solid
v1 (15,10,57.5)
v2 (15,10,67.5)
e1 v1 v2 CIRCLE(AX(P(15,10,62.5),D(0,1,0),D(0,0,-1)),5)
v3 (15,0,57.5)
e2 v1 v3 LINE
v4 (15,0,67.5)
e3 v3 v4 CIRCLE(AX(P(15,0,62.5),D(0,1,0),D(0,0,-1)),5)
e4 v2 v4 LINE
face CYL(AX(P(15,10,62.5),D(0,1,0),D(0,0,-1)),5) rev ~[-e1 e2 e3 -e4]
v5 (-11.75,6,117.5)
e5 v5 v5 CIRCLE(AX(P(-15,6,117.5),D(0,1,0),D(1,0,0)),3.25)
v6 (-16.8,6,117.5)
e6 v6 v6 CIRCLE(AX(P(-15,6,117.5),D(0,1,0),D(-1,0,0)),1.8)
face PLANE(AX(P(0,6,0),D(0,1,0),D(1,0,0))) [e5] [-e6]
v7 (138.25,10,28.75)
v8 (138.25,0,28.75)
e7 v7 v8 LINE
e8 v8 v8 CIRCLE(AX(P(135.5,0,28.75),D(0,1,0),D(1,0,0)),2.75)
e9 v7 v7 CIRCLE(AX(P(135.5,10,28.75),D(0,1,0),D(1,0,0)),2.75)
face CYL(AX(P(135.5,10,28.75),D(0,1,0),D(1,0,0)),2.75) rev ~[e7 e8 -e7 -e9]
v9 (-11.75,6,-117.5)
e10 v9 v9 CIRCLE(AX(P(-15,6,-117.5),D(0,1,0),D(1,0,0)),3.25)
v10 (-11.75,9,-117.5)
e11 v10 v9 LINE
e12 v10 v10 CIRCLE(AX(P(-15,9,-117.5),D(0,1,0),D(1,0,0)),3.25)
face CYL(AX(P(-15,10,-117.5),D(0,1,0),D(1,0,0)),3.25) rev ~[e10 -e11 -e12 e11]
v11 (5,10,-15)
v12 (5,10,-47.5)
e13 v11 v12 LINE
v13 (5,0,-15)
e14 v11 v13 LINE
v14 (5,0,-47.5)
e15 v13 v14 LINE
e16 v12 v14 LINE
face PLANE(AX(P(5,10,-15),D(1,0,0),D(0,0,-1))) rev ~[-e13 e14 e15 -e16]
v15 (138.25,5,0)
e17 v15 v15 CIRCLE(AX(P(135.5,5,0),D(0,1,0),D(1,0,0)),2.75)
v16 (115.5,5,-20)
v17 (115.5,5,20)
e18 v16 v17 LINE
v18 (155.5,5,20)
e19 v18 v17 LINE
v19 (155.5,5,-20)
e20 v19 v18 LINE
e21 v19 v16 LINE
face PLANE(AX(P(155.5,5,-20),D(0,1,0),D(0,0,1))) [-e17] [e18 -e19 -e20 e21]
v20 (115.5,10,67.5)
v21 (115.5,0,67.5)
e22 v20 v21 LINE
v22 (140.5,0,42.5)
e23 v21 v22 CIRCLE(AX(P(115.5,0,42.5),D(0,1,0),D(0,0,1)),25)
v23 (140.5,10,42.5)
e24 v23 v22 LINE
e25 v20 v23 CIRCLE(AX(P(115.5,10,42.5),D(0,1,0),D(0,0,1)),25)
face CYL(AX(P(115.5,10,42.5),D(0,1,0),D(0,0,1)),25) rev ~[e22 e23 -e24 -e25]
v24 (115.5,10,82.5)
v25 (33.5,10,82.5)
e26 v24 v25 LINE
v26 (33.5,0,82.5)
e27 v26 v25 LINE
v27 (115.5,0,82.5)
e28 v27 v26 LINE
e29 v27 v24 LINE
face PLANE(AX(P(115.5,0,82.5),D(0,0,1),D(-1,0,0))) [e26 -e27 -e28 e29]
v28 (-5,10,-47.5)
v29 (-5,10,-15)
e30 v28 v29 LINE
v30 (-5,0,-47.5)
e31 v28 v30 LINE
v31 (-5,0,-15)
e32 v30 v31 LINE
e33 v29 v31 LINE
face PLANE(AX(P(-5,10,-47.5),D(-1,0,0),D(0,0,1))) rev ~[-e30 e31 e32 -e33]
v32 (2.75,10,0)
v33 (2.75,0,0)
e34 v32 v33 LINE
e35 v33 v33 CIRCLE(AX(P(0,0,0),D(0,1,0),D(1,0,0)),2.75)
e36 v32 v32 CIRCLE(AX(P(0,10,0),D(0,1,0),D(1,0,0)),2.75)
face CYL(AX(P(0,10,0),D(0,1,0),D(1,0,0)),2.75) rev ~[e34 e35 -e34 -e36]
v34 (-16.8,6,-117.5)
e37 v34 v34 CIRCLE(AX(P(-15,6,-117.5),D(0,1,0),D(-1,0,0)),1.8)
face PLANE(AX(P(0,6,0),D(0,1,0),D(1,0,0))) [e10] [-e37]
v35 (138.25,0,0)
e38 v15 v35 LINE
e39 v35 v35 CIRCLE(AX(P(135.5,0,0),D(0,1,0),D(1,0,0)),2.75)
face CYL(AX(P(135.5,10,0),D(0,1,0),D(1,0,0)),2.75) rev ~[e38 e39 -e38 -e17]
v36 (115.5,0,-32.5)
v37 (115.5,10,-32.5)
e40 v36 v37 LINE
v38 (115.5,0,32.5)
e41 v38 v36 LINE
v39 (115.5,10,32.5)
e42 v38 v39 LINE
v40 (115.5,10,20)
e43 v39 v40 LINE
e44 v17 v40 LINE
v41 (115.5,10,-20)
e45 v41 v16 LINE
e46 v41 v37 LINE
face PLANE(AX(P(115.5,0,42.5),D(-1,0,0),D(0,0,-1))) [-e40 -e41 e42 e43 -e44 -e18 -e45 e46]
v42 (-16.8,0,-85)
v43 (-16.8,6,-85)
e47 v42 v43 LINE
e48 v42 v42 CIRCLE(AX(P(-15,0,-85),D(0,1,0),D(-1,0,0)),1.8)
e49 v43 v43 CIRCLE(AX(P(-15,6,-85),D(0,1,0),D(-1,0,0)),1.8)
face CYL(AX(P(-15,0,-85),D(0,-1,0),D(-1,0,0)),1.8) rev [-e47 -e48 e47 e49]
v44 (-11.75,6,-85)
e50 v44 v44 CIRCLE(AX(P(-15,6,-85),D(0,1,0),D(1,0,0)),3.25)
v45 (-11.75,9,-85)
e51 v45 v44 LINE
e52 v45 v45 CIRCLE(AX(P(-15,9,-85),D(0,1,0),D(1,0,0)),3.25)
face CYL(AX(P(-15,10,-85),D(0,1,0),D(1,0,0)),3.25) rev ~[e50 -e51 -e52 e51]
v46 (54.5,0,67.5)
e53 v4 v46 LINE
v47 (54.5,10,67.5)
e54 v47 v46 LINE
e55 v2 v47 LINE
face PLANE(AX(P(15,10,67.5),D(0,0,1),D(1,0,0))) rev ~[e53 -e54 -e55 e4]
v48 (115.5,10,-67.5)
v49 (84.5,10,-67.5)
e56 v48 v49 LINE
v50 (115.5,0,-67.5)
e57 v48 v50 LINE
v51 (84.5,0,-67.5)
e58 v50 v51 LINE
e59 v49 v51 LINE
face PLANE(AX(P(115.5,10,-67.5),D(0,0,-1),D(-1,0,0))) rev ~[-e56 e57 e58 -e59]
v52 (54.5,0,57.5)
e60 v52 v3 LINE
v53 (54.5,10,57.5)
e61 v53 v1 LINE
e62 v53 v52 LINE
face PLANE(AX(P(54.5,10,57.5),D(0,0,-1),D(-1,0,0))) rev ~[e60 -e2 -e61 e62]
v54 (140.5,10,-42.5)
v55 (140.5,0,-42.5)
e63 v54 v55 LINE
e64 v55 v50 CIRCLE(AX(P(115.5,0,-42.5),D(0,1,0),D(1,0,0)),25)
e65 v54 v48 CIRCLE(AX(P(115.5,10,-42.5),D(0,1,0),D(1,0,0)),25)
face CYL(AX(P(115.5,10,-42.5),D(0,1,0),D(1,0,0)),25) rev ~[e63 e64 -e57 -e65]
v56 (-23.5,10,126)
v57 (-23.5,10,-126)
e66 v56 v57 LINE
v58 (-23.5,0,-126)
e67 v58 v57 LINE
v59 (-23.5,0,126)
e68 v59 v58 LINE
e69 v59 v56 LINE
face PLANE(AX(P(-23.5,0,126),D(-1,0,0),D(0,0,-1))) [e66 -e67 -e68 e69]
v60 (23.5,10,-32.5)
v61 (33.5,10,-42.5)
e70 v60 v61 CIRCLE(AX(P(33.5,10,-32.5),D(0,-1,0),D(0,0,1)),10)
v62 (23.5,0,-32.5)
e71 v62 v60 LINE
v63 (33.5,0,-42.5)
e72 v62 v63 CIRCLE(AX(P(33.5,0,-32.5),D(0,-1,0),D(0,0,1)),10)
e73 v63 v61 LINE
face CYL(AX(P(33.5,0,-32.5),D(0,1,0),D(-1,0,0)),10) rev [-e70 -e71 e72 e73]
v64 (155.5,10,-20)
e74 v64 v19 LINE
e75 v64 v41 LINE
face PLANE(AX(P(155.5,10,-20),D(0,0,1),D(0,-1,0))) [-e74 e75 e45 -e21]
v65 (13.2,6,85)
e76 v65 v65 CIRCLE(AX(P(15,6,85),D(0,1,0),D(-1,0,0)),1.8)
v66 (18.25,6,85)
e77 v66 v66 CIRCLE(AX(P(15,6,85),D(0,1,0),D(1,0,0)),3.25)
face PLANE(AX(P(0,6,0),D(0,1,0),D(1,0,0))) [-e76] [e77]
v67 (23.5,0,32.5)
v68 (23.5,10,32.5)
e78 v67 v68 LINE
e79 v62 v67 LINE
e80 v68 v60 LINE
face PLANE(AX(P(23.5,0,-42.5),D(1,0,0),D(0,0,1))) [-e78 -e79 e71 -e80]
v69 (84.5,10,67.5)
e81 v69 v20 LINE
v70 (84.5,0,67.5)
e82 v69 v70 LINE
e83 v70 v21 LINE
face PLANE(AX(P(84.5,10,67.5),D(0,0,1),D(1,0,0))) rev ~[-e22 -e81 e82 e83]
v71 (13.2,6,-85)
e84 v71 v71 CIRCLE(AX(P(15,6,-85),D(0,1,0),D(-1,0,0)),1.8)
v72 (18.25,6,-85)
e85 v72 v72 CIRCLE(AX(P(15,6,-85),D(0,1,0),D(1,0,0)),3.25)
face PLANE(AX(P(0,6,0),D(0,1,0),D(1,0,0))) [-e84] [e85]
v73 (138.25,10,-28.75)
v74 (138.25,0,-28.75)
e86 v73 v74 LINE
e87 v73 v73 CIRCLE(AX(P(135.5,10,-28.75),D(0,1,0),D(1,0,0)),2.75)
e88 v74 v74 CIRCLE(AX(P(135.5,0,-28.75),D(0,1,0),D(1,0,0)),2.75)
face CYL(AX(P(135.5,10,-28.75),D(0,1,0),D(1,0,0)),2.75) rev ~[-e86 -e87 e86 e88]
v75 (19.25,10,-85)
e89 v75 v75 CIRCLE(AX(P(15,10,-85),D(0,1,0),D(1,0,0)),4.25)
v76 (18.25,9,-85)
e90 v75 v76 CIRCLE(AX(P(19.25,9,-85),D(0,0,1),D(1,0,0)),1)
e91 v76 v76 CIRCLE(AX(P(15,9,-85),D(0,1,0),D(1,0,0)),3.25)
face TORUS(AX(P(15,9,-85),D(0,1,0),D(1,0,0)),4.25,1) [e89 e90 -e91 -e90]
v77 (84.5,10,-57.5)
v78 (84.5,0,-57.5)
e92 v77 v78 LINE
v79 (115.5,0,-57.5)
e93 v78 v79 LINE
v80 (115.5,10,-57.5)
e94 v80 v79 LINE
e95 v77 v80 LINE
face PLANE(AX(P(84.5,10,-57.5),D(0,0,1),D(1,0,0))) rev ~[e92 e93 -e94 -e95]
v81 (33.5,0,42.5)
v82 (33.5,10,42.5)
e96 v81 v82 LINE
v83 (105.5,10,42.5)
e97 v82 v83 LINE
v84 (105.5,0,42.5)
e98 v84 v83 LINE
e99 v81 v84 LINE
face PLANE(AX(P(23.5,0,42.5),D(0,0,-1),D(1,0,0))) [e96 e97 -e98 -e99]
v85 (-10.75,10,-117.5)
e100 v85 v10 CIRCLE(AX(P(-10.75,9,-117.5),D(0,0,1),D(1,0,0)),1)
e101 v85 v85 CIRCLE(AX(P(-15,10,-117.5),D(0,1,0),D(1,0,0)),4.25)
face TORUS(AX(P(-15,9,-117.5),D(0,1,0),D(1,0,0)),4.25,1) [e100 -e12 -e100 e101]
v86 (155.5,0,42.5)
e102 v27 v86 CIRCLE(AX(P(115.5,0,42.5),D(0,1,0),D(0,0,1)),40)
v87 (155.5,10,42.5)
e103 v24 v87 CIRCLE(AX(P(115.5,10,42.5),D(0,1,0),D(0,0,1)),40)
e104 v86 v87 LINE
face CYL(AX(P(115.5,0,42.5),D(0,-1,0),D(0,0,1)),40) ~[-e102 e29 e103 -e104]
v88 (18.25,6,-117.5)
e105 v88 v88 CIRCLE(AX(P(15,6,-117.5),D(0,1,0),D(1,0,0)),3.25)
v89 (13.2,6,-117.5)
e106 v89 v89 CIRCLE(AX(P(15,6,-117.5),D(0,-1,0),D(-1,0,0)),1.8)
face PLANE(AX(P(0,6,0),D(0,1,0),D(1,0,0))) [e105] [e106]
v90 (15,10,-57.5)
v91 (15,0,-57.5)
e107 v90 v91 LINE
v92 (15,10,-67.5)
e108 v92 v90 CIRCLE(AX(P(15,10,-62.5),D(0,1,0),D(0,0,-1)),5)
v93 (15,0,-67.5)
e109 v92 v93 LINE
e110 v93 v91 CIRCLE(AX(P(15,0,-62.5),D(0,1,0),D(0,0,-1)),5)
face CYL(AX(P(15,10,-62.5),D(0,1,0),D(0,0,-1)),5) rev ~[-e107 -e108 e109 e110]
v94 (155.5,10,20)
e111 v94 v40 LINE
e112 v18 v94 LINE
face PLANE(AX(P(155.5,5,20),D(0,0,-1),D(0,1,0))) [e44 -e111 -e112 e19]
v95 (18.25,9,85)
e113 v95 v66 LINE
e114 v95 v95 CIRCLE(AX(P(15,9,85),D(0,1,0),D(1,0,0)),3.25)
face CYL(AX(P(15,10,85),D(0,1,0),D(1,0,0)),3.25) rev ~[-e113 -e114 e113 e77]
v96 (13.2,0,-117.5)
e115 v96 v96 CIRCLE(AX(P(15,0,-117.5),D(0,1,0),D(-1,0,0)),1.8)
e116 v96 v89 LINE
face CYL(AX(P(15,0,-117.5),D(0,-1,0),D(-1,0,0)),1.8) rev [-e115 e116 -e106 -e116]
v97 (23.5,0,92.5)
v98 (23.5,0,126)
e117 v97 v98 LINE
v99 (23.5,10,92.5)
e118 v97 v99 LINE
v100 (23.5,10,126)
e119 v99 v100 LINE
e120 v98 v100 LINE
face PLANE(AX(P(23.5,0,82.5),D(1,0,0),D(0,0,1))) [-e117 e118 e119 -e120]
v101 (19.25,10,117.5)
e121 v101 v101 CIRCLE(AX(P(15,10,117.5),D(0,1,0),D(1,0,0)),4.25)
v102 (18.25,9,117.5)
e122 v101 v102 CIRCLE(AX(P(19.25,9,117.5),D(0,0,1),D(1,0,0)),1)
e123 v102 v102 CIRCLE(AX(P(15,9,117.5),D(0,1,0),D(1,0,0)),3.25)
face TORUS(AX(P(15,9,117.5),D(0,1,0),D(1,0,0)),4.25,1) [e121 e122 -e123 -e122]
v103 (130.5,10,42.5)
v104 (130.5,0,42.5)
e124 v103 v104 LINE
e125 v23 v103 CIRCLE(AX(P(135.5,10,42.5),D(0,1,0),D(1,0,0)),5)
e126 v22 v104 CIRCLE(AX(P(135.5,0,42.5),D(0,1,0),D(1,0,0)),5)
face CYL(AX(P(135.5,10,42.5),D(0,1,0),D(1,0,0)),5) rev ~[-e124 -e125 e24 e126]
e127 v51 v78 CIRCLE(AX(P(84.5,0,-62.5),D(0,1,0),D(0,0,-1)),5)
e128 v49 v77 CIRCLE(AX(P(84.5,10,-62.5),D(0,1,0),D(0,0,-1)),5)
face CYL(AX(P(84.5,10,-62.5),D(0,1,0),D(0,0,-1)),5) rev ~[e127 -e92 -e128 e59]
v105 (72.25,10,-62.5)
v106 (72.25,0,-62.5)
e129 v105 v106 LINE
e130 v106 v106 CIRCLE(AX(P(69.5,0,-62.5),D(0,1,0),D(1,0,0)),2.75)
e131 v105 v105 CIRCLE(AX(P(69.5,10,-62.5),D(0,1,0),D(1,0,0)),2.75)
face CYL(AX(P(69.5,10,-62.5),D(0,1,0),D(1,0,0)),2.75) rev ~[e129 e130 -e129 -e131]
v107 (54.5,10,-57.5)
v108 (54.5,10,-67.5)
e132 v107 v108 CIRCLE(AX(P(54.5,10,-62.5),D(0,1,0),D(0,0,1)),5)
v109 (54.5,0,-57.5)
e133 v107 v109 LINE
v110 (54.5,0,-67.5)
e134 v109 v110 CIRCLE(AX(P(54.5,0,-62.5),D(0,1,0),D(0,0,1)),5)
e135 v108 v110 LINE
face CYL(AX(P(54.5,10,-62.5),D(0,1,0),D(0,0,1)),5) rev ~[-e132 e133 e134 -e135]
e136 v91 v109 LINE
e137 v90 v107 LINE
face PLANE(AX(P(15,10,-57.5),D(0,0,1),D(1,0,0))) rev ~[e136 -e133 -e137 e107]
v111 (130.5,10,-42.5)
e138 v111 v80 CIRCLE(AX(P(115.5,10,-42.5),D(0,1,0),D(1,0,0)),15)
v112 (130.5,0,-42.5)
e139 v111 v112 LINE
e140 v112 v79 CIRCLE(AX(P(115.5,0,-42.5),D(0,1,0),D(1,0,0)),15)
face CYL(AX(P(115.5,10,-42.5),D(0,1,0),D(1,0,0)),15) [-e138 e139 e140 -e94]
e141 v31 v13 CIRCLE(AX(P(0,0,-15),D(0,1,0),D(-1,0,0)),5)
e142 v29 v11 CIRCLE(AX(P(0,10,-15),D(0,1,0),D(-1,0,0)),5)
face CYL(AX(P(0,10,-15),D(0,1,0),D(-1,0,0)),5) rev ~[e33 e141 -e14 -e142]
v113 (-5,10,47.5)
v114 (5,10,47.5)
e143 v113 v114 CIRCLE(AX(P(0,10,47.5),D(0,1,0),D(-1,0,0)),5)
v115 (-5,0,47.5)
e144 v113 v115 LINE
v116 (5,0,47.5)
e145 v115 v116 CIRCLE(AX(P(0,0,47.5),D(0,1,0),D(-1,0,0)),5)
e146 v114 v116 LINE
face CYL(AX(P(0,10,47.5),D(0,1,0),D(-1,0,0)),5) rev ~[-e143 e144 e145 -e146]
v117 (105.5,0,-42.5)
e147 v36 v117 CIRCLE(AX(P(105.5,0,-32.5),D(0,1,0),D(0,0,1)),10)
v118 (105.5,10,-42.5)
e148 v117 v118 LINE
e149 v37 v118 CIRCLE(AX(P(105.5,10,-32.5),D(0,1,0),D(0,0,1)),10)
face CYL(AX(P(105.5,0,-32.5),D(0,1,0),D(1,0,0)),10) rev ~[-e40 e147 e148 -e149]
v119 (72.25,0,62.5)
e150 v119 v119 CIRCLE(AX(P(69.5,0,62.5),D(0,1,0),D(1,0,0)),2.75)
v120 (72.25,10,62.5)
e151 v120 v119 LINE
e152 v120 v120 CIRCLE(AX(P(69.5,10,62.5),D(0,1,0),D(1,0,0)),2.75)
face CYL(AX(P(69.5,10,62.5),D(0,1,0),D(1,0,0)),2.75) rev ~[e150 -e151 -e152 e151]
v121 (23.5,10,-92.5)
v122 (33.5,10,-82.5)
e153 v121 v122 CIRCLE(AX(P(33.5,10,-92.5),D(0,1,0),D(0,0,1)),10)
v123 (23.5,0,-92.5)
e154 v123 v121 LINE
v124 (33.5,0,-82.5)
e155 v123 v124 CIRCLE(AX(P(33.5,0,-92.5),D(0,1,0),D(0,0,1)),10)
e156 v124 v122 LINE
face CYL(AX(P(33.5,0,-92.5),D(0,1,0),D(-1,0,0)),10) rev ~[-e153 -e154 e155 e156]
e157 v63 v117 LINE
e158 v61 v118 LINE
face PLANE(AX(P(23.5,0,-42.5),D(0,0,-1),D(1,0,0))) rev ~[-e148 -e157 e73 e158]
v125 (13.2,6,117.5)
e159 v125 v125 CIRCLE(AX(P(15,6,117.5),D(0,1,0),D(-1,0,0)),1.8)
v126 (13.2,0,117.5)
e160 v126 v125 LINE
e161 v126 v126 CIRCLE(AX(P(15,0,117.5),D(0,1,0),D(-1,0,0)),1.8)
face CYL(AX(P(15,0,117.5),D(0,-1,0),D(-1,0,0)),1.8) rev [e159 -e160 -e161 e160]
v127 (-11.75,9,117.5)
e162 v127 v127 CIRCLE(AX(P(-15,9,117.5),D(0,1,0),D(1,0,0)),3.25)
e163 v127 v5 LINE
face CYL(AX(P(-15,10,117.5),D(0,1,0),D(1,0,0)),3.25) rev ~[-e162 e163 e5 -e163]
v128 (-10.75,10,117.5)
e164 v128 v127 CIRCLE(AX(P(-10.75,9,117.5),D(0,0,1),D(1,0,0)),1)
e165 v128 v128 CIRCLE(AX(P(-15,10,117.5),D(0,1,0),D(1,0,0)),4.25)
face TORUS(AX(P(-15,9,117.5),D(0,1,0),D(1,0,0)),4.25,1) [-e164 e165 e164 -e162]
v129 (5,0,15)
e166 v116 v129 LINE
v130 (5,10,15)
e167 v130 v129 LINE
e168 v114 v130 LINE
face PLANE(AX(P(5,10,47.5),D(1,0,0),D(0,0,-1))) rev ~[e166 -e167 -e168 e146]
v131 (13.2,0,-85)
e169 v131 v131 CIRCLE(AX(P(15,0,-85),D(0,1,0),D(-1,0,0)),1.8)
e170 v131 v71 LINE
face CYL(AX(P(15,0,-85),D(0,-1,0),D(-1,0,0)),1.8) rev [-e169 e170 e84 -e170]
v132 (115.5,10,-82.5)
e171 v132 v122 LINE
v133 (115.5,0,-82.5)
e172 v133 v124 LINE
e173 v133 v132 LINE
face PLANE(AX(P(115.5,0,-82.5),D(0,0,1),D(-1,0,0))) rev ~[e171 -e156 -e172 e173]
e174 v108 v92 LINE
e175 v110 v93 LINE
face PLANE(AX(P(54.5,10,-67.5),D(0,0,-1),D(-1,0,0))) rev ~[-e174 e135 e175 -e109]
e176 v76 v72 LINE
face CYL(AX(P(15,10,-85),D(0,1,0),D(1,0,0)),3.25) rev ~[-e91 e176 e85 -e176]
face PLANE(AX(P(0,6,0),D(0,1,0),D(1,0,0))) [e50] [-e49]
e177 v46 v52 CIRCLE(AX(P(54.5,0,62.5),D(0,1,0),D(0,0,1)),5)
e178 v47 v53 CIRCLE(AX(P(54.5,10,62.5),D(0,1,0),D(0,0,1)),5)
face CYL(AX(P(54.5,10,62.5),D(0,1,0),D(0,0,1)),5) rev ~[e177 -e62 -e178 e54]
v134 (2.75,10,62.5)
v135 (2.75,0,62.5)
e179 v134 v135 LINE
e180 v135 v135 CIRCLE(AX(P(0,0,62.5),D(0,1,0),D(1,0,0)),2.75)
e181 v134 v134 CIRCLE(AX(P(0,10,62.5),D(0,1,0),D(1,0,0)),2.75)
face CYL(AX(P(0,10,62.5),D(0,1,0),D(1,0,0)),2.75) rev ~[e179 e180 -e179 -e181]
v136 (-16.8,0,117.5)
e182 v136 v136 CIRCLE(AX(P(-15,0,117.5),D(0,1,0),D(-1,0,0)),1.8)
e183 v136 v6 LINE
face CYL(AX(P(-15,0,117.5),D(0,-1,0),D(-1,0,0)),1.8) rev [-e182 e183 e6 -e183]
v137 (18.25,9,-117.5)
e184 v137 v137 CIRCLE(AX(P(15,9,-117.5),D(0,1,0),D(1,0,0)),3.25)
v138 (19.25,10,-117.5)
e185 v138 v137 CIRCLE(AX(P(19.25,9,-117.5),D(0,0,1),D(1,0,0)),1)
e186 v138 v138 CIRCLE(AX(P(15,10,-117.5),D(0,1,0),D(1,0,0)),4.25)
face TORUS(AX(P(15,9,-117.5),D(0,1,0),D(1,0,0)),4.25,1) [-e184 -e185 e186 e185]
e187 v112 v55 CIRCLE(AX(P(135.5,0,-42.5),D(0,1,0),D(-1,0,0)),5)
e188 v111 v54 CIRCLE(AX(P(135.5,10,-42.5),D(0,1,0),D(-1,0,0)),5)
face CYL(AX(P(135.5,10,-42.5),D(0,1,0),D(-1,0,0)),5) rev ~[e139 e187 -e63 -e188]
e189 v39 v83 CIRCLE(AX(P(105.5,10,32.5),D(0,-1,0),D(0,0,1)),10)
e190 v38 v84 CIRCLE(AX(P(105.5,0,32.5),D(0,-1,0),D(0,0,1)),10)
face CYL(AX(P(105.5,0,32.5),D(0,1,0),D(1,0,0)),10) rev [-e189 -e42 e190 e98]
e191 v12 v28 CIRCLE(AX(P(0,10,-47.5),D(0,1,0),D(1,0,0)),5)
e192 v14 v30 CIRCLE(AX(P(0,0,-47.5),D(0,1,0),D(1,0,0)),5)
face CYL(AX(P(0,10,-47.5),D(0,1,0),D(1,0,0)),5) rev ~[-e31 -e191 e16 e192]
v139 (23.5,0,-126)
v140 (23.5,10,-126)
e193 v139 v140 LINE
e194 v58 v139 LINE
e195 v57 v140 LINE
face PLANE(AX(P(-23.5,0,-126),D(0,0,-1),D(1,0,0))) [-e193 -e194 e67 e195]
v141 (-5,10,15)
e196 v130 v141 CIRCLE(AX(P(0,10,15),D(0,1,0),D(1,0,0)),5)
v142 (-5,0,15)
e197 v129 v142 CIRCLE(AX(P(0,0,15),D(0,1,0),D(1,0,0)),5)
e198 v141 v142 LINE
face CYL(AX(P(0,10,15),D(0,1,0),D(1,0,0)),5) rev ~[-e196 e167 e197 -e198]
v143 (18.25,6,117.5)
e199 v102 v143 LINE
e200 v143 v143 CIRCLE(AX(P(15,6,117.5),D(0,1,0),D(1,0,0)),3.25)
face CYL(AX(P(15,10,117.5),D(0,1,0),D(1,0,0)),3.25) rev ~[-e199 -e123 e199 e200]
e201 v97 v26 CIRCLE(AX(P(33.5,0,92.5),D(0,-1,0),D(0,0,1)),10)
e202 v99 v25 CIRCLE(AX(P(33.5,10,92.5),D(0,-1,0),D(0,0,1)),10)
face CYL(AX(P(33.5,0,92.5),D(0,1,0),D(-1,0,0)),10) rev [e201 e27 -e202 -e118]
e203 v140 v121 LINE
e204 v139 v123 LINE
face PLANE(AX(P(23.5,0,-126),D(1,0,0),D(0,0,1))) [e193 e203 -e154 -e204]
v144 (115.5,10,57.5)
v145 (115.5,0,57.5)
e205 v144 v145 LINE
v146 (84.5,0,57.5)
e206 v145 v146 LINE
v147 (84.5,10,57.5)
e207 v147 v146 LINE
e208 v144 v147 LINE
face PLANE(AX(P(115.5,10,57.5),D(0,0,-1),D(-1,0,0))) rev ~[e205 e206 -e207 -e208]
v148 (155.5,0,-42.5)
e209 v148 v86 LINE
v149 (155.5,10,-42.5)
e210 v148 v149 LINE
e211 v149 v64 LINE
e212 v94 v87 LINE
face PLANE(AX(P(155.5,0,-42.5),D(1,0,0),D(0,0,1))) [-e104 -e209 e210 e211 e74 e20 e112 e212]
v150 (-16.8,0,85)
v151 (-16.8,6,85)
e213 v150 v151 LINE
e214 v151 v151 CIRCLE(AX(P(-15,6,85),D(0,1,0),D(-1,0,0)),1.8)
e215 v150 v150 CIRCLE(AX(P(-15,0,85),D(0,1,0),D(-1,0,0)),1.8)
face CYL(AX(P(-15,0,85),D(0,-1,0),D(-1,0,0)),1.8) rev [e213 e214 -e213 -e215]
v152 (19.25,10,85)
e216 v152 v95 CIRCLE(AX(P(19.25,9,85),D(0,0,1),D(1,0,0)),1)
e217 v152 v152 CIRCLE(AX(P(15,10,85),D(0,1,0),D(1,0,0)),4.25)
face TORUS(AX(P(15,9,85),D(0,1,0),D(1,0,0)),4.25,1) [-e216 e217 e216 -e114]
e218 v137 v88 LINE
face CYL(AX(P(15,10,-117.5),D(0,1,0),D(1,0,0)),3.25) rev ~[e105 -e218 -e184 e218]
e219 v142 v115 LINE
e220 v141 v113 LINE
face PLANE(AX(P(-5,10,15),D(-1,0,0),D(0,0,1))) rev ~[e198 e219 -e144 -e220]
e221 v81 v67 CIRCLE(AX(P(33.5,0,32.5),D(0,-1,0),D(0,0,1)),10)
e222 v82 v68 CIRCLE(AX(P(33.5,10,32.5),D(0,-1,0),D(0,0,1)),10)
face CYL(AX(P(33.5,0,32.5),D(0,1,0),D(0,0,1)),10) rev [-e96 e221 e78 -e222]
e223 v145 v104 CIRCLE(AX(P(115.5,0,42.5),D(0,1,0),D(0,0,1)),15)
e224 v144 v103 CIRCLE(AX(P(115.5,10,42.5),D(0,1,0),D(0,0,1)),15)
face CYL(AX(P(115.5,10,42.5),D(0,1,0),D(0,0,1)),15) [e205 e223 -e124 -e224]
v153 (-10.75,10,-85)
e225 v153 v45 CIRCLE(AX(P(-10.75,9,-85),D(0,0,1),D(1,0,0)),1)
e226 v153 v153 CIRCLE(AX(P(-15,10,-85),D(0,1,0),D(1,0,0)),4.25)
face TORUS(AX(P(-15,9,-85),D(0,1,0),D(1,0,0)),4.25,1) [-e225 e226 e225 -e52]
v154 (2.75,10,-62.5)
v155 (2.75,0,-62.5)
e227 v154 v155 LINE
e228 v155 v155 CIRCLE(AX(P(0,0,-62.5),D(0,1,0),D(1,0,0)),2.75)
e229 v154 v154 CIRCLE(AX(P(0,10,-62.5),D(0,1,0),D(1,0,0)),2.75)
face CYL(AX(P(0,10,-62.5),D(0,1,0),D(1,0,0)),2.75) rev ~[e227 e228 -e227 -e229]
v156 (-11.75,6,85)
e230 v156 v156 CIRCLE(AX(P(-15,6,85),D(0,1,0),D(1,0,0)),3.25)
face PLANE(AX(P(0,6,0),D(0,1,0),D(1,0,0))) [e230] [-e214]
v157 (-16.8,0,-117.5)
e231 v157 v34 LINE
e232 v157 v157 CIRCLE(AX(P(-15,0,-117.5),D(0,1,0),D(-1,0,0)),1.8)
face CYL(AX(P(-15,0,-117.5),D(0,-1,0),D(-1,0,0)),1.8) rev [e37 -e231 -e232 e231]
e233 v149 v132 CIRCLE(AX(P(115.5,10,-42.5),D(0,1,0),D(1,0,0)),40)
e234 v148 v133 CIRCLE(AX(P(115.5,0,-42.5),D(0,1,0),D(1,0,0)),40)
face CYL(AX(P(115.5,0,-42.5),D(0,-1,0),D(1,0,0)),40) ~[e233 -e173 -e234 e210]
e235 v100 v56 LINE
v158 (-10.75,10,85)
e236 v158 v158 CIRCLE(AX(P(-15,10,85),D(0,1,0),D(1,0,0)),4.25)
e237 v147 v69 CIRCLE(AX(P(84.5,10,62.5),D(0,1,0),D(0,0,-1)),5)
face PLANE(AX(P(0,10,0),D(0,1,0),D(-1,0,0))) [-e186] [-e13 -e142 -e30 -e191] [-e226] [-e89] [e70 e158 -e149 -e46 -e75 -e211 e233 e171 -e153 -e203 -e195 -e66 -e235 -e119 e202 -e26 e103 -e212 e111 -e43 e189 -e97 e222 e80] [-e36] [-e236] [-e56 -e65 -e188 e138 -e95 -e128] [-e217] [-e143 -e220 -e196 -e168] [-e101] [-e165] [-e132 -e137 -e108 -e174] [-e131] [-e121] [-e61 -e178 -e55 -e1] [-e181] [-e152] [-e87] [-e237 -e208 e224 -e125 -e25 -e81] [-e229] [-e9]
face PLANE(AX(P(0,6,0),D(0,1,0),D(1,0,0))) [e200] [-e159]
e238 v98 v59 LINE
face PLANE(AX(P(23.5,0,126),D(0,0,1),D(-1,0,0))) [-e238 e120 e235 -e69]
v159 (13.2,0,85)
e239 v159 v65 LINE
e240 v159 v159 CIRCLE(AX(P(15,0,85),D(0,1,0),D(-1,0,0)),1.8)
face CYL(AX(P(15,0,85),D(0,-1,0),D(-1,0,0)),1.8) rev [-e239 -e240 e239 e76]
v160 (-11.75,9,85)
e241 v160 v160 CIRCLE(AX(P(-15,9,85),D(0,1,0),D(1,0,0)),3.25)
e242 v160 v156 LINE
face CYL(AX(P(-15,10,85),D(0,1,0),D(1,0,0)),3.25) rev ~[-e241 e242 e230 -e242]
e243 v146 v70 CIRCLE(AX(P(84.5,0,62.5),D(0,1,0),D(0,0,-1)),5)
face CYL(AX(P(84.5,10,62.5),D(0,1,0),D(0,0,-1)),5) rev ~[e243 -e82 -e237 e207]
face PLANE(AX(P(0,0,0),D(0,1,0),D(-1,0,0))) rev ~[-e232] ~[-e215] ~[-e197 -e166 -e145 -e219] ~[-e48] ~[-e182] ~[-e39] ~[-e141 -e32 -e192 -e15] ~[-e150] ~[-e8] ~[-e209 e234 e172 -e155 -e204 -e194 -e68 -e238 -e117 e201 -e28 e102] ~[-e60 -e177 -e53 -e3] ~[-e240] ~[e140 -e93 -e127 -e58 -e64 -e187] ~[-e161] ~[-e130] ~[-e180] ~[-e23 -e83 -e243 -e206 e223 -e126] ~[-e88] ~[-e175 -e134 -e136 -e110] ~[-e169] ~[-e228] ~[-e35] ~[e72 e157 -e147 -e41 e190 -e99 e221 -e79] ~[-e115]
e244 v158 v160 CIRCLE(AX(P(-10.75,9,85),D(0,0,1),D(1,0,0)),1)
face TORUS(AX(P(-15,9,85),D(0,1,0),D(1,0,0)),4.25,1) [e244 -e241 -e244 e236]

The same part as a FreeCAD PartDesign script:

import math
import FreeCAD as App
import Part
import Sketcher
from FreeCAD import Vector


def edges_at(feature, points):
    """Names of the edges that pass closest to the given points."""
    edges = feature.Shape.Edges
    near = lambda p: min(range(len(edges)), key=lambda i: edges[i].distToShape(Part.Vertex(*p))[0])
    return sorted({f"Edge{near(p) + 1}" for p in points})


def add_polygon(sketch, points):
    """Adds a closed chain of lines whose ends are joined by coincident constraints."""
    first, n = sketch.GeometryCount, len(points)
    for a, b in zip(points, points[1:] + points[:1]):
        sketch.addGeometry(Part.LineSegment(App.Vector(*a, 0), App.Vector(*b, 0)), False)
    for i in range(n):
        sketch.addConstraint(Sketcher.Constraint("Coincident", first + i, 2, first + (i + 1) % n, 1))

doc = App.newDocument("Part")
body = doc.addObject("PartDesign::Body", "Body")

sketch1 = body.newObject("Sketcher::SketchObject", "Sketch")
sketch1.AttachmentSupport = (doc.getObject("XZ_Plane"), [""])
sketch1.MapMode = "FlatFace"
sketch1.addGeometry(Part.LineSegment(Vector(-23.5, 126, 0), Vector(23.5, 126, 0)), False)
sketch1.addGeometry(Part.LineSegment(Vector(23.5, 126, 0), Vector(23.5, 82.5, 0)), False)
sketch1.addGeometry(Part.LineSegment(Vector(23.5, 82.5, 0), Vector(115.5, 82.5, 0)), False)
sketch1.addGeometry(Part.ArcOfCircle(Part.Circle(Vector(115.5, 42.5, 0), Vector(0, 0, 1), 40), math.radians(0), math.radians(90)), False)
sketch1.addGeometry(Part.LineSegment(Vector(155.5, 42.5, 0), Vector(155.5, -42.5, 0)), False)
sketch1.addGeometry(Part.ArcOfCircle(Part.Circle(Vector(115.5, -42.5, 0), Vector(0, 0, 1), 40), math.radians(-90), math.radians(0)), False)
sketch1.addGeometry(Part.LineSegment(Vector(115.5, -82.5, 0), Vector(23.5, -82.5, 0)), False)
sketch1.addGeometry(Part.LineSegment(Vector(23.5, -82.5, 0), Vector(23.5, -126, 0)), False)
sketch1.addGeometry(Part.LineSegment(Vector(23.5, -126, 0), Vector(-23.5, -126, 0)), False)
sketch1.addGeometry(Part.LineSegment(Vector(-23.5, -126, 0), Vector(-23.5, 126, 0)), False)
add_polygon(sketch1, [(23.5, -42.5), (115.5, -42.5), (115.5, 42.5), (23.5, 42.5)])
sketch1.addGeometry(Part.Circle(Vector(15, -117.5, 0), Vector(0, 0, 1), 1.8), False)
sketch1.addGeometry(Part.Circle(Vector(-15, -117.5, 0), Vector(0, 0, 1), 1.8), False)
sketch1.addGeometry(Part.Circle(Vector(15, -85, 0), Vector(0, 0, 1), 1.8), False)
sketch1.addGeometry(Part.Circle(Vector(-15, -85, 0), Vector(0, 0, 1), 1.8), False)
sketch1.addGeometry(Part.Circle(Vector(15, 85, 0), Vector(0, 0, 1), 1.8), False)
sketch1.addGeometry(Part.Circle(Vector(-15, 85, 0), Vector(0, 0, 1), 1.8), False)
sketch1.addGeometry(Part.Circle(Vector(15, 117.5, 0), Vector(0, 0, 1), 1.8), False)
sketch1.addGeometry(Part.Circle(Vector(-15, 117.5, 0), Vector(0, 0, 1), 1.8), False)
sketch1.addConstraint(Sketcher.Constraint("Coincident", 0, 2, 1, 1))
sketch1.addConstraint(Sketcher.Constraint("Coincident", 1, 2, 2, 1))
sketch1.addConstraint(Sketcher.Constraint("Tangent", 2, 2, 3, 2))
sketch1.addConstraint(Sketcher.Constraint("Tangent", 3, 1, 4, 1))
sketch1.addConstraint(Sketcher.Constraint("Tangent", 4, 2, 5, 2))
sketch1.addConstraint(Sketcher.Constraint("Tangent", 5, 1, 6, 1))
sketch1.addConstraint(Sketcher.Constraint("Coincident", 6, 2, 7, 1))
sketch1.addConstraint(Sketcher.Constraint("Coincident", 7, 2, 8, 1))
sketch1.addConstraint(Sketcher.Constraint("Coincident", 8, 2, 9, 1))
sketch1.addConstraint(Sketcher.Constraint("Coincident", 9, 2, 0, 1))
sketch1.addConstraint(Sketcher.Constraint("Horizontal", 0))
sketch1.addConstraint(Sketcher.Constraint("Vertical", 1))
sketch1.addConstraint(Sketcher.Constraint("Horizontal", 2))
sketch1.addConstraint(Sketcher.Constraint("Vertical", 4))
sketch1.addConstraint(Sketcher.Constraint("Horizontal", 6))
sketch1.addConstraint(Sketcher.Constraint("Vertical", 7))
sketch1.addConstraint(Sketcher.Constraint("Horizontal", 8))
sketch1.addConstraint(Sketcher.Constraint("Vertical", 9))
sketch1.addConstraint(Sketcher.Constraint("Horizontal", 10))
sketch1.addConstraint(Sketcher.Constraint("Vertical", 11))
sketch1.addConstraint(Sketcher.Constraint("Horizontal", 12))
sketch1.addConstraint(Sketcher.Constraint("Vertical", 13))
sketch1.addConstraint(Sketcher.Constraint("Coincident", 10, 2, 5, 3))
sketch1.addConstraint(Sketcher.Constraint("Coincident", 11, 2, 3, 3))
sketch1.addConstraint(Sketcher.Constraint("Equal", 14, 15))
sketch1.addConstraint(Sketcher.Constraint("Equal", 15, 16))
sketch1.addConstraint(Sketcher.Constraint("Equal", 16, 17))
sketch1.addConstraint(Sketcher.Constraint("Equal", 17, 18))
sketch1.addConstraint(Sketcher.Constraint("Equal", 18, 19))
sketch1.addConstraint(Sketcher.Constraint("Equal", 19, 20))
sketch1.addConstraint(Sketcher.Constraint("Equal", 20, 21))
sketch1.addConstraint(Sketcher.Constraint("Symmetric", 17, 3, 18, 3, -1, 1))
sketch1.addConstraint(Sketcher.Constraint("Symmetric", 16, 3, 19, 3, -1, 1))
sketch1.addConstraint(Sketcher.Constraint("Symmetric", 15, 3, 20, 3, -1, 1))
sketch1.addConstraint(Sketcher.Constraint("Symmetric", 14, 3, 21, 3, -1, 1))
sketch1.addConstraint(Sketcher.Constraint("Symmetric", 0, 2, 8, 2, -1, 1))
sketch1.addConstraint(Sketcher.Constraint("Symmetric", 14, 3, 15, 3, -2))
sketch1.addConstraint(Sketcher.Constraint("Symmetric", 16, 3, 17, 3, -2))
sketch1.addConstraint(Sketcher.Constraint("Symmetric", 1, 2, 6, 2, -1))
sketch1.addConstraint(Sketcher.Constraint("Vertical", 14, 3, 16, 3))
sketch1.addConstraint(Sketcher.Constraint("Vertical", 7, 2, 12, 2))
sketch1.addConstraint(Sketcher.Constraint("Radius", 3, 40.0))
sketch1.addConstraint(Sketcher.Constraint("Diameter", 14, 3.6))
sketch1.addConstraint(Sketcher.Constraint("DistanceX", 0, 1, 0, 2, 47.0))
sketch1.addConstraint(Sketcher.Constraint("DistanceX", 2, 1, 2, 2, 92.0))
sketch1.addConstraint(Sketcher.Constraint("DistanceY", 9, 1, 9, 2, 252.0))
sketch1.addConstraint(Sketcher.Constraint("DistanceY", 4, 2, 4, 1, 85.0))
sketch1.addConstraint(Sketcher.Constraint("DistanceX", -1, 1, 14, 3, 15.0))
sketch1.addConstraint(Sketcher.Constraint("DistanceY", 16, 3, -1, 1, 85.0))
sketch1.addConstraint(Sketcher.Constraint("DistanceY", 14, 3, 5, 3, 75.0))
pad1 = body.newObject("PartDesign::Pad", "Pad")
pad1.Profile = sketch1
pad1.Length = 10
pad1.Reversed = True

sketch2 = body.newObject("Sketcher::SketchObject", "Sketch001")
sketch2.AttachmentSupport = (doc.getObject("XZ_Plane"), [""])
sketch2.MapMode = "FlatFace"
sketch2.AttachmentOffset = App.Placement(Vector(0, 0, -10), App.Rotation())
sketch2.addGeometry(Part.Circle(Vector(15, -117.5, 0), Vector(0, 0, 1), 3.2), False)
sketch2.addGeometry(Part.Circle(Vector(15, -85, 0), Vector(0, 0, 1), 3.2), False)
sketch2.addGeometry(Part.Circle(Vector(15, -85, 0), Vector(0, 0, 1), 1.8), False)
sketch2.addGeometry(Part.Circle(Vector(-15, -85, 0), Vector(0, 0, 1), 3.2), False)
sketch2.addGeometry(Part.Circle(Vector(-15, -85, 0), Vector(0, 0, 1), 1.8), False)
sketch2.addGeometry(Part.Circle(Vector(-15, -117.5, 0), Vector(0, 0, 1), 3.2), False)
sketch2.addGeometry(Part.Circle(Vector(-15, -117.5, 0), Vector(0, 0, 1), 1.8), False)
sketch2.addGeometry(Part.Circle(Vector(15, 85, 0), Vector(0, 0, 1), 3.2), False)
sketch2.addGeometry(Part.Circle(Vector(15, 85, 0), Vector(0, 0, 1), 1.8), False)
sketch2.addGeometry(Part.Circle(Vector(-15, 85, 0), Vector(0, 0, 1), 3.2), False)
sketch2.addGeometry(Part.Circle(Vector(-15, 85, 0), Vector(0, 0, 1), 1.8), False)
sketch2.addGeometry(Part.Circle(Vector(-15, 117.5, 0), Vector(0, 0, 1), 3.2), False)
sketch2.addGeometry(Part.Circle(Vector(-15, 117.5, 0), Vector(0, 0, 1), 1.8), False)
sketch2.addGeometry(Part.Circle(Vector(15, 117.5, 0), Vector(0, 0, 1), 3.2), False)
sketch2.addGeometry(Part.Circle(Vector(15, 117.5, 0), Vector(0, 0, 1), 1.8), False)
sketch2.addConstraint(Sketcher.Constraint("Coincident", 2, 3, 1, 3))
sketch2.addConstraint(Sketcher.Constraint("Coincident", 4, 3, 3, 3))
sketch2.addConstraint(Sketcher.Constraint("Coincident", 6, 3, 5, 3))
sketch2.addConstraint(Sketcher.Constraint("Coincident", 8, 3, 7, 3))
sketch2.addConstraint(Sketcher.Constraint("Coincident", 10, 3, 9, 3))
sketch2.addConstraint(Sketcher.Constraint("Coincident", 12, 3, 11, 3))
sketch2.addConstraint(Sketcher.Constraint("Coincident", 14, 3, 13, 3))
sketch2.addConstraint(Sketcher.Constraint("Equal", 0, 1))
sketch2.addConstraint(Sketcher.Constraint("Equal", 1, 3))
sketch2.addConstraint(Sketcher.Constraint("Equal", 2, 4))
sketch2.addConstraint(Sketcher.Constraint("Equal", 3, 5))
sketch2.addConstraint(Sketcher.Constraint("Equal", 4, 6))
sketch2.addConstraint(Sketcher.Constraint("Equal", 5, 7))
sketch2.addConstraint(Sketcher.Constraint("Equal", 6, 8))
sketch2.addConstraint(Sketcher.Constraint("Equal", 7, 9))
sketch2.addConstraint(Sketcher.Constraint("Equal", 8, 10))
sketch2.addConstraint(Sketcher.Constraint("Equal", 9, 11))
sketch2.addConstraint(Sketcher.Constraint("Equal", 10, 12))
sketch2.addConstraint(Sketcher.Constraint("Equal", 11, 13))
sketch2.addConstraint(Sketcher.Constraint("Equal", 12, 14))
sketch2.addConstraint(Sketcher.Constraint("Symmetric", 3, 3, 7, 3, -1, 1))
sketch2.addConstraint(Sketcher.Constraint("Symmetric", 1, 3, 9, 3, -1, 1))
sketch2.addConstraint(Sketcher.Constraint("Symmetric", 0, 3, 11, 3, -1, 1))
sketch2.addConstraint(Sketcher.Constraint("Symmetric", 5, 3, 13, 3, -1, 1))
sketch2.addConstraint(Sketcher.Constraint("Symmetric", 1, 3, 3, 3, -2))
sketch2.addConstraint(Sketcher.Constraint("Symmetric", 0, 3, 5, 3, -2))
sketch2.addConstraint(Sketcher.Constraint("Vertical", 0, 3, 1, 3))
sketch2.addConstraint(Sketcher.Constraint("Diameter", 0, 6.5))
sketch2.addConstraint(Sketcher.Constraint("Diameter", 2, 3.6))
sketch2.addConstraint(Sketcher.Constraint("DistanceX", -1, 1, 0, 3, 15.0))
sketch2.addConstraint(Sketcher.Constraint("DistanceY", 1, 3, -1, 1, 85.0))
sketch2.addConstraint(Sketcher.Constraint("DistanceY", 0, 3, -1, 1, 117.5))
pocket1 = body.newObject("PartDesign::Pocket", "Pocket")
pocket1.Profile = sketch2
pocket1.Length = 4
pocket1.Reversed = True
doc.recompute()

fillet = body.newObject("PartDesign::Fillet", "Fillet")
fillet.Base = (pocket1, edges_at(pocket1, [
    (-18.25, 10, -117.5),
    (11.75, 10, -117.5),
    (-18.25, 10, -85),
    (11.75, 10, -85),
    (-18.25, 10, 85),
    (11.75, 10, 85),
    (11.75, 10, 117.5),
    (-18.25, 10, 117.5),
]))
fillet.Radius = 1

sketch3 = body.newObject("Sketcher::SketchObject", "Sketch002")
sketch3.AttachmentSupport = (doc.getObject("YZ_Plane"), [""])
sketch3.MapMode = "FlatFace"
sketch3.AttachmentOffset = App.Placement(Vector(0, 0, 155.5), App.Rotation())
add_polygon(sketch3, [(10, -20), (10, 20), (5, 20), (5, -20)])
sketch3.addConstraint(Sketcher.Constraint("Vertical", 0))
sketch3.addConstraint(Sketcher.Constraint("Horizontal", 1))
sketch3.addConstraint(Sketcher.Constraint("Vertical", 2))
sketch3.addConstraint(Sketcher.Constraint("Horizontal", 3))
sketch3.addConstraint(Sketcher.Constraint("DistanceX", 1, 2, 1, 1, 5.0))
sketch3.addConstraint(Sketcher.Constraint("DistanceY", 0, 1, 0, 2, 40.0))
sketch3.addConstraint(Sketcher.Constraint("DistanceX", -1, 1, 1, 2, 5.0))
sketch3.addConstraint(Sketcher.Constraint("DistanceY", -1, 1, 0, 2, 20.0))
pocket2 = body.newObject("PartDesign::Pocket", "Pocket001")
pocket2.Profile = sketch3
pocket2.Length = 40

sketch4 = body.newObject("Sketcher::SketchObject", "Sketch003")
sketch4.AttachmentSupport = (doc.getObject("XZ_Plane"), [""])
sketch4.MapMode = "FlatFace"
sketch4.AttachmentOffset = App.Placement(Vector(0, 0, -10), App.Rotation())
sketch4.addGeometry(Part.Circle(Vector(0, 0, 0), Vector(0, 0, 1), 2.8), False)
sketch4.addGeometry(Part.Circle(Vector(69.5, 62.5, 0), Vector(0, 0, 1), 2.8), False)
sketch4.addGeometry(Part.Circle(Vector(135.5, 0, 0), Vector(0, 0, 1), 2.8), False)
sketch4.addGeometry(Part.Circle(Vector(69.5, -62.5, 0), Vector(0, 0, 1), 2.8), False)
sketch4.addGeometry(Part.Circle(Vector(0, -62.5, 0), Vector(0, 0, 1), 2.8), False)
sketch4.addGeometry(Part.Circle(Vector(0, 62.5, 0), Vector(0, 0, 1), 2.8), False)
sketch4.addConstraint(Sketcher.Constraint("Coincident", 0, 3, -1, 1))
sketch4.addConstraint(Sketcher.Constraint("Equal", 0, 1))
sketch4.addConstraint(Sketcher.Constraint("Equal", 1, 2))
sketch4.addConstraint(Sketcher.Constraint("Equal", 2, 3))
sketch4.addConstraint(Sketcher.Constraint("Equal", 3, 4))
sketch4.addConstraint(Sketcher.Constraint("Equal", 4, 5))
sketch4.addConstraint(Sketcher.Constraint("Symmetric", 4, 3, 5, 3, -1, 1))
sketch4.addConstraint(Sketcher.Constraint("Symmetric", 1, 3, 3, 3, -1))
sketch4.addConstraint(Sketcher.Constraint("PointOnObject", 2, 3, -1))
sketch4.addConstraint(Sketcher.Constraint("PointOnObject", 4, 3, -2))
sketch4.addConstraint(Sketcher.Constraint("Horizontal", 3, 3, 4, 3))
sketch4.addConstraint(Sketcher.Constraint("Diameter", 0, 5.5))
sketch4.addConstraint(Sketcher.Constraint("DistanceX", 1, 3, 2, 3, 66.0))
sketch4.addConstraint(Sketcher.Constraint("DistanceY", 3, 3, 1, 3, 125.0))
sketch4.addConstraint(Sketcher.Constraint("DistanceX", -1, 1, 1, 3, 69.5))
pocket3 = body.newObject("PartDesign::Pocket", "Pocket002")
pocket3.Profile = sketch4
pocket3.Type = "ThroughAll"
pocket3.Reversed = True
doc.recompute()

fillet2 = body.newObject("PartDesign::Fillet", "Fillet001")
fillet2.Base = (pocket3, edges_at(pocket3, [
    (23.5, 5, -42.5),
    (115.5, 5, -42.5),
    (23.5, 5, 42.5),
    (115.5, 5, 42.5),
    (23.5, 5, -82.5),
    (23.5, 5, 82.5),
]))
fillet2.Radius = 10

sketch5 = body.newObject("Sketcher::SketchObject", "Sketch004")
sketch5.AttachmentSupport = (doc.getObject("XZ_Plane"), [""])
sketch5.MapMode = "FlatFace"
sketch5.AttachmentOffset = App.Placement(Vector(0, 0, -10), App.Rotation())
sketch5.addGeometry(Part.ArcOfCircle(Part.Circle(Vector(136, -42, 0), Vector(0, 0, 1), 5), math.radians(0), math.radians(180)), False)
sketch5.addGeometry(Part.ArcOfCircle(Part.Circle(Vector(116, -42, 0), Vector(0, 0, 1), 25), math.radians(-90), math.radians(0)), False)
sketch5.addGeometry(Part.LineSegment(Vector(116, -68, 0), Vector(84, -68, 0)), False)
sketch5.addGeometry(Part.ArcOfCircle(Part.Circle(Vector(84, -62, 0), Vector(0, 0, 1), 5), math.radians(90), math.radians(270)), False)
sketch5.addGeometry(Part.LineSegment(Vector(84, -58, 0), Vector(116, -58, 0)), False)
sketch5.addGeometry(Part.ArcOfCircle(Part.Circle(Vector(116, -42, 0), Vector(0, 0, 1), 15), math.radians(-90), math.radians(0)), False)
sketch5.addGeometry(Part.ArcOfCircle(Part.Circle(Vector(116, 42, 0), Vector(0, 0, 1), 15), math.radians(0), math.radians(90)), False)
sketch5.addGeometry(Part.LineSegment(Vector(116, 58, 0), Vector(84, 58, 0)), False)
sketch5.addGeometry(Part.ArcOfCircle(Part.Circle(Vector(84, 62, 0), Vector(0, 0, 1), 5), math.radians(90), math.radians(270)), False)
sketch5.addGeometry(Part.LineSegment(Vector(84, 68, 0), Vector(116, 68, 0)), False)
sketch5.addGeometry(Part.ArcOfCircle(Part.Circle(Vector(116, 42, 0), Vector(0, 0, 1), 25), math.radians(0), math.radians(90)), False)
sketch5.addGeometry(Part.ArcOfCircle(Part.Circle(Vector(136, 42, 0), Vector(0, 0, 1), 5), math.radians(180), math.radians(360)), False)
sketch5.addGeometry(Part.ArcOfCircle(Part.Circle(Vector(15, -62, 0), Vector(0, 0, 1), 5), math.radians(90), math.radians(270)), False)
sketch5.addGeometry(Part.LineSegment(Vector(15, -58, 0), Vector(54, -58, 0)), False)
sketch5.addGeometry(Part.ArcOfCircle(Part.Circle(Vector(54, -62, 0), Vector(0, 0, 1), 5), math.radians(-90), math.radians(90)), False)
sketch5.addGeometry(Part.LineSegment(Vector(54, -68, 0), Vector(15, -68, 0)), False)
sketch5.addGeometry(Part.ArcOfCircle(Part.Circle(Vector(15, 62, 0), Vector(0, 0, 1), 5), math.radians(90), math.radians(270)), False)
sketch5.addGeometry(Part.LineSegment(Vector(15, 68, 0), Vector(54, 68, 0)), False)
sketch5.addGeometry(Part.ArcOfCircle(Part.Circle(Vector(54, 62, 0), Vector(0, 0, 1), 5), math.radians(-90), math.radians(90)), False)
sketch5.addGeometry(Part.LineSegment(Vector(54, 58, 0), Vector(15, 58, 0)), False)
sketch5.addGeometry(Part.ArcOfCircle(Part.Circle(Vector(0, 15, 0), Vector(0, 0, 1), 5), math.radians(180), math.radians(360)), False)
sketch5.addGeometry(Part.LineSegment(Vector(-5, 15, 0), Vector(-5, 48, 0)), False)
sketch5.addGeometry(Part.ArcOfCircle(Part.Circle(Vector(0, 48, 0), Vector(0, 0, 1), 5), math.radians(0), math.radians(180)), False)
sketch5.addGeometry(Part.LineSegment(Vector(5, 48, 0), Vector(5, 15, 0)), False)
sketch5.addGeometry(Part.ArcOfCircle(Part.Circle(Vector(0, -15, 0), Vector(0, 0, 1), 5), math.radians(0), math.radians(180)), False)
sketch5.addGeometry(Part.LineSegment(Vector(5, -15, 0), Vector(5, -48, 0)), False)
sketch5.addGeometry(Part.ArcOfCircle(Part.Circle(Vector(0, -48, 0), Vector(0, 0, 1), 5), math.radians(180), math.radians(360)), False)
sketch5.addGeometry(Part.LineSegment(Vector(-5, -48, 0), Vector(-5, -15, 0)), False)
sketch5.addConstraint(Sketcher.Constraint("Tangent", 0, 1, 1, 2))
sketch5.addConstraint(Sketcher.Constraint("Tangent", 1, 1, 2, 1))
sketch5.addConstraint(Sketcher.Constraint("Tangent", 2, 2, 3, 2))
sketch5.addConstraint(Sketcher.Constraint("Tangent", 3, 1, 4, 1))
sketch5.addConstraint(Sketcher.Constraint("Tangent", 4, 2, 5, 1))
sketch5.addConstraint(Sketcher.Constraint("Tangent", 5, 2, 0, 2))
sketch5.addConstraint(Sketcher.Constraint("Tangent", 6, 2, 7, 1))
sketch5.addConstraint(Sketcher.Constraint("Tangent", 7, 2, 8, 2))
sketch5.addConstraint(Sketcher.Constraint("Tangent", 8, 1, 9, 1))
sketch5.addConstraint(Sketcher.Constraint("Tangent", 9, 2, 10, 2))
sketch5.addConstraint(Sketcher.Constraint("Tangent", 10, 1, 11, 2))
sketch5.addConstraint(Sketcher.Constraint("Tangent", 11, 1, 6, 1))
sketch5.addConstraint(Sketcher.Constraint("Tangent", 12, 1, 13, 1))
sketch5.addConstraint(Sketcher.Constraint("Tangent", 13, 2, 14, 2))
sketch5.addConstraint(Sketcher.Constraint("Tangent", 14, 1, 15, 1))
sketch5.addConstraint(Sketcher.Constraint("Tangent", 15, 2, 12, 2))
sketch5.addConstraint(Sketcher.Constraint("Tangent", 16, 1, 17, 1))
sketch5.addConstraint(Sketcher.Constraint("Tangent", 17, 2, 18, 2))
sketch5.addConstraint(Sketcher.Constraint("Tangent", 18, 1, 19, 1))
sketch5.addConstraint(Sketcher.Constraint("Tangent", 19, 2, 16, 2))
sketch5.addConstraint(Sketcher.Constraint("Tangent", 20, 1, 21, 1))
sketch5.addConstraint(Sketcher.Constraint("Tangent", 21, 2, 22, 2))
sketch5.addConstraint(Sketcher.Constraint("Tangent", 22, 1, 23, 1))
sketch5.addConstraint(Sketcher.Constraint("Tangent", 23, 2, 20, 2))
sketch5.addConstraint(Sketcher.Constraint("Tangent", 24, 1, 25, 1))
sketch5.addConstraint(Sketcher.Constraint("Tangent", 25, 2, 26, 2))
sketch5.addConstraint(Sketcher.Constraint("Tangent", 26, 1, 27, 1))
sketch5.addConstraint(Sketcher.Constraint("Tangent", 27, 2, 24, 2))
sketch5.addConstraint(Sketcher.Constraint("Horizontal", 2))
sketch5.addConstraint(Sketcher.Constraint("Horizontal", 4))
sketch5.addConstraint(Sketcher.Constraint("Horizontal", 7))
sketch5.addConstraint(Sketcher.Constraint("Horizontal", 9))
sketch5.addConstraint(Sketcher.Constraint("Horizontal", 13))
sketch5.addConstraint(Sketcher.Constraint("Horizontal", 15))
sketch5.addConstraint(Sketcher.Constraint("Horizontal", 17))
sketch5.addConstraint(Sketcher.Constraint("Horizontal", 19))
sketch5.addConstraint(Sketcher.Constraint("Vertical", 21))
sketch5.addConstraint(Sketcher.Constraint("Vertical", 23))
sketch5.addConstraint(Sketcher.Constraint("Vertical", 25))
sketch5.addConstraint(Sketcher.Constraint("Vertical", 27))
sketch5.addConstraint(Sketcher.Constraint("Coincident", 5, 3, 1, 3))
sketch5.addConstraint(Sketcher.Constraint("Coincident", 10, 3, 6, 3))
sketch5.addConstraint(Sketcher.Constraint("Equal", 5, 6))
sketch5.addConstraint(Sketcher.Constraint("Equal", 3, 8))
sketch5.addConstraint(Sketcher.Constraint("Equal", 11, 12))
sketch5.addConstraint(Sketcher.Constraint("Equal", 14, 16))
sketch5.addConstraint(Sketcher.Constraint("Equal", 18, 20))
sketch5.addConstraint(Sketcher.Constraint("Equal", 22, 24))
sketch5.addConstraint(Sketcher.Constraint("Symmetric", 20, 3, 24, 3, -1, 1))
sketch5.addConstraint(Sketcher.Constraint("Symmetric", 1, 3, 6, 3, -1))
sketch5.addConstraint(Sketcher.Constraint("Symmetric", 12, 3, 16, 3, -1))
sketch5.addConstraint(Sketcher.Constraint("Symmetric", 22, 3, 26, 3, -1))
sketch5.addConstraint(Sketcher.Constraint("Horizontal", 0, 3, 1, 3))
sketch5.addConstraint(Sketcher.Constraint("Horizontal", 10, 3, 11, 3))
sketch5.addConstraint(Sketcher.Constraint("Horizontal", 3, 3, 12, 3))
sketch5.addConstraint(Sketcher.Constraint("Vertical", 3, 3, 8, 3))
sketch5.addConstraint(Sketcher.Constraint("Vertical", 14, 3, 18, 3))
sketch5.addConstraint(Sketcher.Constraint("Radius", 0, 5.0))
sketch5.addConstraint(Sketcher.Constraint("Radius", 1, 25.0))
sketch5.addConstraint(Sketcher.Constraint("DistanceY", 12, 1, 26, 3, 10.0))
sketch5.addConstraint(Sketcher.Constraint("DistanceX", 22, 1, 19, 2, 10.0))
sketch5.addConstraint(Sketcher.Constraint("DistanceX", 2, 2, 2, 1, 31.0))
sketch5.addConstraint(Sketcher.Constraint("DistanceX", 13, 1, 13, 2, 39.5))
sketch5.addConstraint(Sketcher.Constraint("DistanceY", 21, 1, 21, 2, 32.5))
sketch5.addConstraint(Sketcher.Constraint("DistanceY", -1, 1, 20, 3, 15.0))
sketch5.addConstraint(Sketcher.Constraint("DistanceX", 14, 3, 3, 3, 30.0))
pocket4 = body.newObject("PartDesign::Pocket", "Pocket003")
pocket4.Profile = sketch5
pocket4.Length = 10
pocket4.Reversed = True

sketch6 = body.newObject("Sketcher::SketchObject", "Sketch005")
sketch6.AttachmentSupport = (doc.getObject("XZ_Plane"), [""])
sketch6.MapMode = "FlatFace"
sketch6.AttachmentOffset = App.Placement(Vector(0, 0, -10), App.Rotation())
sketch6.addGeometry(Part.Circle(Vector(135.5, -28.8, 0), Vector(0, 0, 1), 2.8), False)
sketch6.addGeometry(Part.Circle(Vector(135.5, 28.8, 0), Vector(0, 0, 1), 2.8), False)
sketch6.addConstraint(Sketcher.Constraint("Equal", 0, 1))
sketch6.addConstraint(Sketcher.Constraint("Symmetric", 0, 3, 1, 3, -1))
sketch6.addConstraint(Sketcher.Constraint("Diameter", 0, 5.5))
sketch6.addConstraint(Sketcher.Constraint("DistanceX", -1, 1, 0, 3, 135.5))
sketch6.addConstraint(Sketcher.Constraint("DistanceY", 0, 3, 1, 3, 57.5))
pocket5 = body.newObject("PartDesign::Pocket", "Pocket004")
pocket5.Profile = sketch6
pocket5.Length = 10
pocket5.Reversed = True

doc.recompute()
